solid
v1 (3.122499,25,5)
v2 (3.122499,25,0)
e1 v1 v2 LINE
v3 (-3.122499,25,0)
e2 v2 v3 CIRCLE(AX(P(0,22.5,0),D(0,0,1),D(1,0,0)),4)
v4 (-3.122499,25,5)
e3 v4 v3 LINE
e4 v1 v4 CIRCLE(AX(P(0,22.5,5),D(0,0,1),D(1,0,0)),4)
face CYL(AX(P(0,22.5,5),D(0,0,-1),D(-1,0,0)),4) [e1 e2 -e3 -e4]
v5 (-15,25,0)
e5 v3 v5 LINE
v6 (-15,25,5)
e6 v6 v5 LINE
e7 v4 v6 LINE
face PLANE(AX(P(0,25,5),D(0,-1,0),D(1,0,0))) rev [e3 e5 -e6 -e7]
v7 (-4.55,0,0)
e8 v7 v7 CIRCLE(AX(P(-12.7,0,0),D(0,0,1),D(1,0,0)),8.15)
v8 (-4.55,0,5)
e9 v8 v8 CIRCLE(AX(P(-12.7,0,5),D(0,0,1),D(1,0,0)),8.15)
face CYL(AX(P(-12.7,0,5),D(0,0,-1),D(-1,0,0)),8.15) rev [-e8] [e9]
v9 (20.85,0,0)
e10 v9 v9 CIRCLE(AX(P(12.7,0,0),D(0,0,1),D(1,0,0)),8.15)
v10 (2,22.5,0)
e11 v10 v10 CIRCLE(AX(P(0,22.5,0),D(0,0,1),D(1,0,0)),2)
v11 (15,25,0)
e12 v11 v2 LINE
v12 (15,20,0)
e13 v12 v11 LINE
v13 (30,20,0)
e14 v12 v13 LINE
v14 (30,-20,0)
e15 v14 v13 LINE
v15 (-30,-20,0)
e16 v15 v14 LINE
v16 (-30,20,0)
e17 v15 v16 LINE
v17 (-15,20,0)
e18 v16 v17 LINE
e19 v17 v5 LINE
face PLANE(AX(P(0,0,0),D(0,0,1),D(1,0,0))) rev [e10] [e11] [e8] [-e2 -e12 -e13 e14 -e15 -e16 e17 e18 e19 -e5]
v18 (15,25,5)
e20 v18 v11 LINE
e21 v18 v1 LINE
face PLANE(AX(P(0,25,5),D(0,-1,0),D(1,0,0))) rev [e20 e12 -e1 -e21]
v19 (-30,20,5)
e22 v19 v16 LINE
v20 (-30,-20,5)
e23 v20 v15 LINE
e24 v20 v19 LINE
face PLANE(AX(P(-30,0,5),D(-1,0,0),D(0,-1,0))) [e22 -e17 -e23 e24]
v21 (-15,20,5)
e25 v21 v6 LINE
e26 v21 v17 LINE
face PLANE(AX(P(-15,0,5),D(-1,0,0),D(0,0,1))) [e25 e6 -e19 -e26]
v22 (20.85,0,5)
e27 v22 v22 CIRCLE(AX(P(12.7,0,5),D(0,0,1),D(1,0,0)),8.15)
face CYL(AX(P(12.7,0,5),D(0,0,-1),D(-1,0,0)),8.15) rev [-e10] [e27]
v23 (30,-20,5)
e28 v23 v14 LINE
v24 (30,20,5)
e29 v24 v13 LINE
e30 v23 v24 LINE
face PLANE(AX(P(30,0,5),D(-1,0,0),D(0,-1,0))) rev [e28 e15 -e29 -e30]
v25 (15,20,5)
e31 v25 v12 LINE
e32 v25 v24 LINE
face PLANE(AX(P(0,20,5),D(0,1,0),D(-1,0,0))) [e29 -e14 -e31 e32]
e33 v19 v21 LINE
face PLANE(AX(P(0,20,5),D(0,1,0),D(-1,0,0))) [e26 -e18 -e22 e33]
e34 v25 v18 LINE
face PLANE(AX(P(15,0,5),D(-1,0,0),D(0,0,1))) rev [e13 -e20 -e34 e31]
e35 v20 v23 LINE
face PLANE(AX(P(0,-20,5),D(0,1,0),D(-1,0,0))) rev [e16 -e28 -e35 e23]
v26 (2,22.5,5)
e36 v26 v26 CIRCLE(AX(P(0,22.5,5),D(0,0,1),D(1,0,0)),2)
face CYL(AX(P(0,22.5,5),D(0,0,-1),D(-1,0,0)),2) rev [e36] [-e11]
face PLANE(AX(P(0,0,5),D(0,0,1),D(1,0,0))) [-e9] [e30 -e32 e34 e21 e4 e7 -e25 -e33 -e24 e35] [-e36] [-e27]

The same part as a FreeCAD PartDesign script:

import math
import FreeCAD as App
import Part
import Sketcher
from FreeCAD import Vector

doc = App.newDocument("Part")
body = doc.addObject("PartDesign::Body", "Body")

sketch1 = body.newObject("Sketcher::SketchObject", "Sketch")
sketch1.AttachmentSupport = (doc.getObject("XY_Plane"), [""])
sketch1.MapMode = "FlatFace"
sketch1.addGeometry([
    Part.LineSegment(Vector(-30, 20, 0), Vector(-30, -20, 0)),
    Part.LineSegment(Vector(-30, -20, 0), Vector(30, -20, 0)),
    Part.LineSegment(Vector(30, -20, 0), Vector(30, 20, 0)),
    Part.LineSegment(Vector(30, 20, 0), Vector(15, 20, 0)),
    Part.LineSegment(Vector(15, 20, 0), Vector(15, 25, 0)),
    Part.LineSegment(Vector(15, 25, 0), Vector(3.122499, 25, 0)),
    Part.ArcOfCircle(Part.Circle(Vector(0, 22.5, 0), Vector(0, 0, 1), 4), math.radians(38.682187), math.radians(141.317813)),
    Part.LineSegment(Vector(-3.122499, 25, 0), Vector(-15, 25, 0)),
    Part.LineSegment(Vector(-15, 25, 0), Vector(-15, 20, 0)),
    Part.LineSegment(Vector(-15, 20, 0), Vector(-30, 20, 0)),
    Part.Circle(Vector(-12.7, 0, 0), Vector(0, 0, 1), 8.15),
    Part.Circle(Vector(12.7, 0, 0), Vector(0, 0, 1), 8.15),
    Part.Circle(Vector(0, 22.5, 0), Vector(0, 0, 1), 2),
], False)
sketch1.addConstraint([
    Sketcher.Constraint("Coincident", 0, 2, 1, 1),
    Sketcher.Constraint("Coincident", 1, 2, 2, 1),
    Sketcher.Constraint("Coincident", 2, 2, 3, 1),
    Sketcher.Constraint("Coincident", 3, 2, 4, 1),
    Sketcher.Constraint("Coincident", 4, 2, 5, 1),
    Sketcher.Constraint("Coincident", 5, 2, 6, 1),
    Sketcher.Constraint("Coincident", 6, 2, 7, 1),
    Sketcher.Constraint("Coincident", 7, 2, 8, 1),
    Sketcher.Constraint("Coincident", 8, 2, 9, 1),
    Sketcher.Constraint("Coincident", 9, 2, 0, 1),
    Sketcher.Constraint("Vertical", 0),
    Sketcher.Constraint("Horizontal", 1),
    Sketcher.Constraint("Vertical", 2),
    Sketcher.Constraint("Horizontal", 3),
    Sketcher.Constraint("Vertical", 4),
    Sketcher.Constraint("Horizontal", 5),
    Sketcher.Constraint("Horizontal", 7),
    Sketcher.Constraint("Vertical", 8),
    Sketcher.Constraint("Horizontal", 9),
    Sketcher.Constraint("Coincident", 12, 3, 6, 3),
    Sketcher.Constraint("Equal", 10, 11),
    Sketcher.Constraint("Symmetric", 10, 3, 11, 3, -1, 1),
    Sketcher.Constraint("Symmetric", 0, 2, 2, 2, -1, 1),
    Sketcher.Constraint("Symmetric", 5, 2, 6, 2, -2),
    Sketcher.Constraint("Symmetric", 3, 2, 8, 2, -2),
    Sketcher.Constraint("PointOnObject", 10, 3, -1),
    Sketcher.Constraint("Diameter", 12, 4.0),
    Sketcher.Constraint("Radius", 6, 4.0),
    Sketcher.Constraint("Diameter", 10, 16.3),
    Sketcher.Constraint("DistanceX", 1, 1, 1, 2, 60.0),
    Sketcher.Constraint("DistanceX", 3, 2, 3, 1, 15.0),
    Sketcher.Constraint("DistanceY", 0, 2, 0, 1, 40.0),
    Sketcher.Constraint("DistanceY", 4, 1, 4, 2, 5.0),
    Sketcher.Constraint("DistanceY", -1, 1, 6, 3, 22.5),
    Sketcher.Constraint("DistanceX", 10, 3, -1, 1, 12.7),
])
pad1 = body.newObject("PartDesign::Pad", "Pad")
pad1.Profile = sketch1
pad1.Length = 5

doc.recompute()
